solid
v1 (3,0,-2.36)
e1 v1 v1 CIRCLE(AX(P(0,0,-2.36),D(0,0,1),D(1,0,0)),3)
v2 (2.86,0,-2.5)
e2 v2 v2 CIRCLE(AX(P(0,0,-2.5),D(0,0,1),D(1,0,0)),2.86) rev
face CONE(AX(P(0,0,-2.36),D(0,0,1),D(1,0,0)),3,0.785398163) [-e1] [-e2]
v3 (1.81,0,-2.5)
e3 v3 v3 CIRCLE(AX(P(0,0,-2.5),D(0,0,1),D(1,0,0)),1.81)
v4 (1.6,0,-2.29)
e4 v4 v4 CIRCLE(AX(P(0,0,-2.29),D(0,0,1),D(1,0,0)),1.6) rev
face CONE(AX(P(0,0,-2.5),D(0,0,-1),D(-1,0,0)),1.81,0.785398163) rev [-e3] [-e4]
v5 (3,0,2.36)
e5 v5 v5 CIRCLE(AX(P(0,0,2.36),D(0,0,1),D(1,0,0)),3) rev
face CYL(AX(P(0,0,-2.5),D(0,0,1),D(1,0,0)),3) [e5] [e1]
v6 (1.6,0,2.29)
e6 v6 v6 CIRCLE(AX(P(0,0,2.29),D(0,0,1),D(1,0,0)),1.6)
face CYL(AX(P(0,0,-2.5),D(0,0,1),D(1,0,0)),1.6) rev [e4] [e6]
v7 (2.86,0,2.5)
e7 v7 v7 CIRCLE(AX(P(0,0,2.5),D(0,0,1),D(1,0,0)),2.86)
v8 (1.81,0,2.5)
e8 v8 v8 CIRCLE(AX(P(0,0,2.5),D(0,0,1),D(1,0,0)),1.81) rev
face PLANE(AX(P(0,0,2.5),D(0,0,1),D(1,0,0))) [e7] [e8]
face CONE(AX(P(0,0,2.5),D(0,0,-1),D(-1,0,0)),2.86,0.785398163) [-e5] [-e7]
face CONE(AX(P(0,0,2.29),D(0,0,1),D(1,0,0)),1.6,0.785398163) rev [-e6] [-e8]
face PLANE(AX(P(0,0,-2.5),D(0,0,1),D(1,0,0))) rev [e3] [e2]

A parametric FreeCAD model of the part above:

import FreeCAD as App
import Part
import Sketcher


def edges_at(feature, points):
    """Names of the edges that pass closest to the given points."""
    edges = feature.Shape.Edges
    near = lambda p: min(range(len(edges)), key=lambda i: edges[i].distToShape(Part.Vertex(*p))[0])
    return sorted({f"Edge{near(p) + 1}" for p in points})

doc = App.newDocument("Part")
body = doc.addObject("PartDesign::Body", "Body")

sketch1 = body.newObject("Sketcher::SketchObject", "Sketch")
sketch1.AttachmentSupport = (doc.getObject("XY_Plane"), [""])
sketch1.MapMode = "FlatFace"
sketch1.addGeometry(Part.Circle(App.Vector(0, 0, 0), App.Vector(0, 0, 1), 3), False)
sketch1.addGeometry(Part.Circle(App.Vector(0, 0, 0), App.Vector(0, 0, 1), 1.6), False)
sketch1.addConstraint(Sketcher.Constraint("Coincident", 0, 3, -1, 1))
sketch1.addConstraint(Sketcher.Constraint("Coincident", 1, 3, -1, 1))
sketch1.addConstraint(Sketcher.Constraint("Diameter", 0, 6.0))
sketch1.addConstraint(Sketcher.Constraint("Diameter", 1, 3.2))
pad1 = body.newObject("PartDesign::Pad", "Pad")
pad1.Profile = sketch1
pad1.Type = "TwoLengths"
pad1.Length = 2.5
pad1.Length2 = 2.5
doc.recompute()

chamfer = body.newObject("PartDesign::Chamfer", "Chamfer")
chamfer.Base = (pad1, edges_at(pad1, [(-3, 0, -2.5), (-3, 0, 2.5)]))
chamfer.Size = 0.14
doc.recompute()

chamfer2 = body.newObject("PartDesign::Chamfer", "Chamfer001")
chamfer2.Base = (chamfer, edges_at(chamfer, [(-1.6, 0, -2.5), (-1.6, 0, 2.5)]))
chamfer2.Size = 0.21

doc.recompute()
